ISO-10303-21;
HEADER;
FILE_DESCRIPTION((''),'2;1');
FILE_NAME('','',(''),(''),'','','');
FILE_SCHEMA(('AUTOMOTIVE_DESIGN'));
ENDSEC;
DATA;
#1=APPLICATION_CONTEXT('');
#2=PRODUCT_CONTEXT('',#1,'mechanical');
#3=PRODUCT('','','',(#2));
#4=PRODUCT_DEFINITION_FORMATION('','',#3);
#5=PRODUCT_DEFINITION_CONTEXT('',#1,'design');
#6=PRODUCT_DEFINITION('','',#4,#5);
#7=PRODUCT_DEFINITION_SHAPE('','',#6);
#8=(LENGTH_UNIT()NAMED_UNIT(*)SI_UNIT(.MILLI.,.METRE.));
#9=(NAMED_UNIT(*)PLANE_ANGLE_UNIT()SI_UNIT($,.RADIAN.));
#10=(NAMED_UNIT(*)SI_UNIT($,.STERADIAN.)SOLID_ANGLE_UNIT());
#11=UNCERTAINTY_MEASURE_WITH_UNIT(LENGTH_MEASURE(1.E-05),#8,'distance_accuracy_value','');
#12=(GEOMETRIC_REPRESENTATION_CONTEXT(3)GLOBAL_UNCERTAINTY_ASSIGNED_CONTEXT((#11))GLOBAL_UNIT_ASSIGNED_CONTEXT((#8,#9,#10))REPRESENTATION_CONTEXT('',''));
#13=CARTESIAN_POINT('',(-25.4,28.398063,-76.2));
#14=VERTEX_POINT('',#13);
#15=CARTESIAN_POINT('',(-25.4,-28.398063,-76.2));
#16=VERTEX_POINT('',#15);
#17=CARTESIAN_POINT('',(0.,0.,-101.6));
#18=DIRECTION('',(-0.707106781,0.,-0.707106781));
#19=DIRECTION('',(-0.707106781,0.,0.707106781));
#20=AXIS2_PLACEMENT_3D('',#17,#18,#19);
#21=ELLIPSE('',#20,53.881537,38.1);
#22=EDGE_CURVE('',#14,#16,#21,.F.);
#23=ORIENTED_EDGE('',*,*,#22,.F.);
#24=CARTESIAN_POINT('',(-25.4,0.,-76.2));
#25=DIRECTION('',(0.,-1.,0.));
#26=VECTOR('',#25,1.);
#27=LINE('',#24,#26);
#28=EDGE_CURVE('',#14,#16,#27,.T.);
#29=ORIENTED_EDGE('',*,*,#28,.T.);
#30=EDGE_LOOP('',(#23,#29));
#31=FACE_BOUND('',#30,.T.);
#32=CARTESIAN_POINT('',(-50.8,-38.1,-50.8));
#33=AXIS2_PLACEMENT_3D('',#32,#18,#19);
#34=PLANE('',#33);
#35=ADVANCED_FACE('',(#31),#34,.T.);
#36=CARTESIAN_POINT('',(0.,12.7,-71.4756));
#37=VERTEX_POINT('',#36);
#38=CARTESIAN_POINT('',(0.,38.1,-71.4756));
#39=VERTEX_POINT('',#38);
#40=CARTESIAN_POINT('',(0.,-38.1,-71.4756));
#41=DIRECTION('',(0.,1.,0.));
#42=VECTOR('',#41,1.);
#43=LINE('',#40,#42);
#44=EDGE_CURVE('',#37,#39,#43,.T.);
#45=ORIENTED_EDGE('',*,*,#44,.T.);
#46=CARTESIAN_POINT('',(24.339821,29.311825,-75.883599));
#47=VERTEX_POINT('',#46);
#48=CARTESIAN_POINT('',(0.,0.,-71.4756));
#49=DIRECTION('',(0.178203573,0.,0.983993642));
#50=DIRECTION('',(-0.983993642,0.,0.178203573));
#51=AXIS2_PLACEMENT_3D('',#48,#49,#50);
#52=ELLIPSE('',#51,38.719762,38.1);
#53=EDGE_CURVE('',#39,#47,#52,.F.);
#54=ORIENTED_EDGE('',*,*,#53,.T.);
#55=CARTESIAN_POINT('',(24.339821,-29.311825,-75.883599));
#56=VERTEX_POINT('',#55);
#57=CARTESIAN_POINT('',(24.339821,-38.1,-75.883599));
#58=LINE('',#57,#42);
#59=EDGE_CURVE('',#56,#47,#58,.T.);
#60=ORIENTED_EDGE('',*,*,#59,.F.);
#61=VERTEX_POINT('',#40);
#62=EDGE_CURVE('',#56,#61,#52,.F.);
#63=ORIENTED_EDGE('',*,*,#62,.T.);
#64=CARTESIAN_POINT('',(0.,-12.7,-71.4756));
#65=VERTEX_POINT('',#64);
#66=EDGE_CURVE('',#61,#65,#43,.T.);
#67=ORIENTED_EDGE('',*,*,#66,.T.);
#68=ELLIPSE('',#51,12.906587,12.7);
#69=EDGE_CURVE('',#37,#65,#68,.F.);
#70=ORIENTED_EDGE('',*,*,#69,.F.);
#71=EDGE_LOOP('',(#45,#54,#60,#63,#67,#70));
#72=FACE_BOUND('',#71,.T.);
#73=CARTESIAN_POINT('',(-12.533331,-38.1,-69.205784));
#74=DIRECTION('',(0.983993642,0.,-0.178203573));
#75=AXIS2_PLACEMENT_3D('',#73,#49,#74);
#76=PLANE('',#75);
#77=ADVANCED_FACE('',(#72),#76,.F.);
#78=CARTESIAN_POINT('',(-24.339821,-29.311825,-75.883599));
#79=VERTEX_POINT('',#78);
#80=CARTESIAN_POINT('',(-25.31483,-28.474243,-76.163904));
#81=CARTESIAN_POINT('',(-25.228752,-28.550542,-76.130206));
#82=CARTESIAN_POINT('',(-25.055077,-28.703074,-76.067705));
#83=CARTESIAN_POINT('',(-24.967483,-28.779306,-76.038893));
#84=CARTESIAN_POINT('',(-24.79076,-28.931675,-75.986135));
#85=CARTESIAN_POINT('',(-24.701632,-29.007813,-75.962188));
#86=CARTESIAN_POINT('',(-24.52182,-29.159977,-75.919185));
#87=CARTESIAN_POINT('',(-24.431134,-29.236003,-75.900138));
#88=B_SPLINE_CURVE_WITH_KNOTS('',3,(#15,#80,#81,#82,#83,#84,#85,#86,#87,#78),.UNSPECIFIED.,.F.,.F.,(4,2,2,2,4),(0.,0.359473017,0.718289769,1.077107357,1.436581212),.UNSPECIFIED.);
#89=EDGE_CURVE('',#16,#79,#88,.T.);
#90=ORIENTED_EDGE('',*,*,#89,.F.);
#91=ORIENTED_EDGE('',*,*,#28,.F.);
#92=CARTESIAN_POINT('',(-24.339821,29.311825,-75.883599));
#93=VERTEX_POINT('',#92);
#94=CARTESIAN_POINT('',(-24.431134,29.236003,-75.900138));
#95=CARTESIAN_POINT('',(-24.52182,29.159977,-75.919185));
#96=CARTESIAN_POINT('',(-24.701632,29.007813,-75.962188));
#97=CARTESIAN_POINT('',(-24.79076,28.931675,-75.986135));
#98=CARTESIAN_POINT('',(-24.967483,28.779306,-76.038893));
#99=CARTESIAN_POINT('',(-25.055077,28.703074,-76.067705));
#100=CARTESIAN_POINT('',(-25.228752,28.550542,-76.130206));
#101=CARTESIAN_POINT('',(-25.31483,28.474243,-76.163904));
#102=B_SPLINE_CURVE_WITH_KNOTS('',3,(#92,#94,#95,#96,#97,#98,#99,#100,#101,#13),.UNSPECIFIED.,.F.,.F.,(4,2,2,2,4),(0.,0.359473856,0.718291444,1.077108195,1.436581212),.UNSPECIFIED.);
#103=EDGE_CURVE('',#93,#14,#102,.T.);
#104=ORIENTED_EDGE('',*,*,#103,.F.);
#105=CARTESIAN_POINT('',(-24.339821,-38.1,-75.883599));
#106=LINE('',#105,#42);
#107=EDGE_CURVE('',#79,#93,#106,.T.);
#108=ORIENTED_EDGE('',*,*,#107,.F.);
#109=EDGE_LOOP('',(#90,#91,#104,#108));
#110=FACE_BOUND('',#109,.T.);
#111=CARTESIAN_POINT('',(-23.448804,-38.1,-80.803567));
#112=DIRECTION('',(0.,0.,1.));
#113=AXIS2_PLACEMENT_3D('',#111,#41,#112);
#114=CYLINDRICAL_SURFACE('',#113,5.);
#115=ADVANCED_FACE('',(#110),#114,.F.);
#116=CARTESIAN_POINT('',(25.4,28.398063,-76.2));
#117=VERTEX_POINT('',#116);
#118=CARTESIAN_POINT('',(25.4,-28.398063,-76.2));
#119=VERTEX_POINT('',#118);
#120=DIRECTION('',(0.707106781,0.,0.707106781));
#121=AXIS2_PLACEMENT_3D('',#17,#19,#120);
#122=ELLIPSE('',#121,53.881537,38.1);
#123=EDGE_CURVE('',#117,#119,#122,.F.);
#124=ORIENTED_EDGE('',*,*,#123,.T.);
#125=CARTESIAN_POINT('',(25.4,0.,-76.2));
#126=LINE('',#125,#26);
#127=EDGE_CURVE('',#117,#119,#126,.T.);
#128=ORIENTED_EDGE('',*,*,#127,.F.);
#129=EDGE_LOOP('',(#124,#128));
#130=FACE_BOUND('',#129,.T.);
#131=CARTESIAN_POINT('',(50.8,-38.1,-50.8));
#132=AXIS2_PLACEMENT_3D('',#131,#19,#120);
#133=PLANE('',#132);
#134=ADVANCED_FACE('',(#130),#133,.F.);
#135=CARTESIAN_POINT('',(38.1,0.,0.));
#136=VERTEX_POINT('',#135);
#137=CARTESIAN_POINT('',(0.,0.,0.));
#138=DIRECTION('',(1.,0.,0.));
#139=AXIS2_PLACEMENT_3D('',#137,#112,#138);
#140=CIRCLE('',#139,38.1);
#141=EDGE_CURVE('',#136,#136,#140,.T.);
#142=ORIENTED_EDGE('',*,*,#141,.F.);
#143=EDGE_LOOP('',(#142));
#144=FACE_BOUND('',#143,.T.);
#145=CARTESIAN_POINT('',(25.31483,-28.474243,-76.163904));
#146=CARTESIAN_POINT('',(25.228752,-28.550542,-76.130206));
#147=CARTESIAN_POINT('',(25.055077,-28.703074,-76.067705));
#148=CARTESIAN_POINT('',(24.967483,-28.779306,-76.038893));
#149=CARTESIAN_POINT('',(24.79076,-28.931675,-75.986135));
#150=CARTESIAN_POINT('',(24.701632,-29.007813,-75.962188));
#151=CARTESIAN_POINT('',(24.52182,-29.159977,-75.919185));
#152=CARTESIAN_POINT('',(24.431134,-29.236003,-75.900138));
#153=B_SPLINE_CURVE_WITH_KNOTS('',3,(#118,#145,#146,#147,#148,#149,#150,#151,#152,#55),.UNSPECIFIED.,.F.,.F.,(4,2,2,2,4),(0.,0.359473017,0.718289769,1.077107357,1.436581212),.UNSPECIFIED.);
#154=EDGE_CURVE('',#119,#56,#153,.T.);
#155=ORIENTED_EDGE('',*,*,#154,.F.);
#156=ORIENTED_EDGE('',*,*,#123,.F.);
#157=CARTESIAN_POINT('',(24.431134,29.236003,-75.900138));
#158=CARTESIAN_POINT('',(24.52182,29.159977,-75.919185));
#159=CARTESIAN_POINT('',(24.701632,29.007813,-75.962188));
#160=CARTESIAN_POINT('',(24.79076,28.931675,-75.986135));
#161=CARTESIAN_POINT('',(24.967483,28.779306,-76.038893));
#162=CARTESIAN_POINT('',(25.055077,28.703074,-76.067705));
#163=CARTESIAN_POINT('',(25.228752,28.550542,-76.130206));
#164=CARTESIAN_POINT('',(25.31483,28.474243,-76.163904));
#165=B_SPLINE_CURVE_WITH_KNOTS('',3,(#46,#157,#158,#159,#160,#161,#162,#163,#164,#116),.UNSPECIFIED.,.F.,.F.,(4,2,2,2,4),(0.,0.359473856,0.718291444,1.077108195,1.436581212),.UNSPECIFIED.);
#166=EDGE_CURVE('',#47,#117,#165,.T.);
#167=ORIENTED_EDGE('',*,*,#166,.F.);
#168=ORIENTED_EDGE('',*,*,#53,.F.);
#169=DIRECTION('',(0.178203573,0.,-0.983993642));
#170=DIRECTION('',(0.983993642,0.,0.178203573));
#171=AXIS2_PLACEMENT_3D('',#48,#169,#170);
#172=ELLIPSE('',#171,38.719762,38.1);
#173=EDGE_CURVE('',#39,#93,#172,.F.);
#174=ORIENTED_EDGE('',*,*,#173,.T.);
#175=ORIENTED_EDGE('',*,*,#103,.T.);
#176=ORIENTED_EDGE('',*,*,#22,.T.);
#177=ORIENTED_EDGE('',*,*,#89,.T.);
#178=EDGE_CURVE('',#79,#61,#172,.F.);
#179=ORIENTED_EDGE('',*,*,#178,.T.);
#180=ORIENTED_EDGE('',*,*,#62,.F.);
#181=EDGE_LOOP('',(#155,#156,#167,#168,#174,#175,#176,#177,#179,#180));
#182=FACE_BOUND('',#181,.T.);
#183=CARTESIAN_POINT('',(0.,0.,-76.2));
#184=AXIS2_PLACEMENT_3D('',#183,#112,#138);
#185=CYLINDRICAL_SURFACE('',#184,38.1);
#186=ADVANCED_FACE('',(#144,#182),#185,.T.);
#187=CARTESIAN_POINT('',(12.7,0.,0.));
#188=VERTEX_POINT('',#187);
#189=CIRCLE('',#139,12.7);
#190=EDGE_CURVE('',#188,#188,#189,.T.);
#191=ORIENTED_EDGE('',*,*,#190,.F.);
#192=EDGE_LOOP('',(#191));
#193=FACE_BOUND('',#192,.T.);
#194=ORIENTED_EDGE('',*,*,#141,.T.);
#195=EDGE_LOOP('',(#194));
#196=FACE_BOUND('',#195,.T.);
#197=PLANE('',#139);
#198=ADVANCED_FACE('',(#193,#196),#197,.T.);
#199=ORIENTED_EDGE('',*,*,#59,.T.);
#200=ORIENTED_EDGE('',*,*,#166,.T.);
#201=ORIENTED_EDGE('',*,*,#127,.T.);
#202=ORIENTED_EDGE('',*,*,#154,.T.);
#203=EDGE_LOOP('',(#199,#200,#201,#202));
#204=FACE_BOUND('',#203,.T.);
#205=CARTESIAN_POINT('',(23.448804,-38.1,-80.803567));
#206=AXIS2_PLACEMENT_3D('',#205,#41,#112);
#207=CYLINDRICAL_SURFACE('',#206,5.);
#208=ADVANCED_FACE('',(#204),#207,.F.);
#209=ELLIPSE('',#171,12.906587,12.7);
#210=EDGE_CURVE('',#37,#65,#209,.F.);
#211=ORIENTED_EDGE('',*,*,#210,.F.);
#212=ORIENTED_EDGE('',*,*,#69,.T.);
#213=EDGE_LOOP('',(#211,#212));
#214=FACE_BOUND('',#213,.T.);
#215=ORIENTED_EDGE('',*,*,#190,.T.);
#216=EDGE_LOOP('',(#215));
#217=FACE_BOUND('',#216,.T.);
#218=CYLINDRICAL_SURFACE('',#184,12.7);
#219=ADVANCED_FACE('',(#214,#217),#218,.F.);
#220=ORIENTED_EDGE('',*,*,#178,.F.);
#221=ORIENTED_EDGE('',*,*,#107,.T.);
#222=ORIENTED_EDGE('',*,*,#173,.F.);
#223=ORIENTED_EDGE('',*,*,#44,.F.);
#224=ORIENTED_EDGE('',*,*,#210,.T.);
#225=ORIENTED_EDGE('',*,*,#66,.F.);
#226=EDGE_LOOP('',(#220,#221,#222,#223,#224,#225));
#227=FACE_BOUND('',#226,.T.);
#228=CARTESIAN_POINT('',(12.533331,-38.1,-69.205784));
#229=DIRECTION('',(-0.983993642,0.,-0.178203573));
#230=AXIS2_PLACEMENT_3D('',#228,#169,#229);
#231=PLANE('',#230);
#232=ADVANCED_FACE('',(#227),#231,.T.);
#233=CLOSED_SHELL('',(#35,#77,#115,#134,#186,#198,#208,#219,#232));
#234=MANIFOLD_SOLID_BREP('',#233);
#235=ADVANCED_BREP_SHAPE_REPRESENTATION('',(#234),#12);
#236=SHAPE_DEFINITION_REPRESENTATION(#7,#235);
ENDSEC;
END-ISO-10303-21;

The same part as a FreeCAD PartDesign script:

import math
import FreeCAD as App
import Part
import Sketcher

V = App.Vector
Q = App.Units.Quantity


def add_polygon(sketch, points):
    """Adds a closed chain of lines whose ends are joined by coincident constraints."""
    first, n = sketch.GeometryCount, len(points)
    for a, b in zip(points, points[1:] + points[:1]):
        sketch.addGeometry(Part.LineSegment(App.Vector(*a, 0), App.Vector(*b, 0)), False)
    for i in range(n):
        sketch.addConstraint(Sketcher.Constraint("Coincident", first + i, 2, first + (i + 1) % n, 1))

doc = App.newDocument("Part")
body = doc.addObject("PartDesign::Body", "Body")

# Sketch on XY plane
sketch1 = doc.addObject("Sketcher::SketchObject", "Sketch")
body.addObject(sketch1)
sketch1.AttachmentSupport = (doc.XY_Plane, [""])
sketch1.MapMode = "FlatFace"
sketch1.addGeometry(Part.Circle(V(0, 0, 0), V(0, 0, 1), 38), False)
sketch1.addGeometry(Part.Circle(V(0, 0, 0), V(0, 0, 1), 13), False)
sketch1.addConstraint(Sketcher.Constraint("Coincident", 0, 3, -1, 1))
sketch1.addConstraint(Sketcher.Constraint("Coincident", 1, 3, -1, 1))
sketch1.addConstraint(Sketcher.Constraint("Diameter", 0, Q("3 in")))
sketch1.addConstraint(Sketcher.Constraint("Diameter", 1, Q("1 in")))
pad1 = doc.addObject("PartDesign::Pad", "Pad")
body.addObject(pad1)
pad1.Profile = sketch1
pad1.Length = Q("3 in")
pad1.Reversed = True

# Sketch on XZ plane
sketch2 = doc.addObject("Sketcher::SketchObject", "Sketch001")
body.addObject(sketch2)
sketch2.AttachmentSupport = (doc.XZ_Plane, [""])
sketch2.MapMode = "FlatFace"
add_polygon(sketch2, [(-25.4, -76.2), (-38.1, -76.2), (-38.1, -63.5)])  # lines 0-2
sketch2.addGeometry(Part.ArcOfCircle(Part.Circle(V(-23.4, -80.8, 0), V(0, 0, 1), 5), math.radians(100.27), math.radians(112.97)), False)  # 3
sketch2.addGeometry(Part.LineSegment(V(-24.3, -75.9, 0), V(0, -71.5, 0)), False)  # 4
sketch2.addGeometry(Part.LineSegment(V(0, -71.5, 0), V(24.3, -75.9, 0)), False)  # 5
sketch2.addGeometry(Part.ArcOfCircle(Part.Circle(V(23.4, -80.8, 0), V(0, 0, 1), 5), math.radians(67.03), math.radians(79.73)), False)  # 6
sketch2.addGeometry(Part.LineSegment(V(25.4, -76.2, 0), V(-25.4, -76.2, 0)), False)  # 7
add_polygon(sketch2, [(38.1, -76.2), (25.4, -76.2), (38.1, -63.5)])  # lines 8-10
sketch2.addConstraint(Sketcher.Constraint("Tangent", 3, 1, 4, 1))
sketch2.addConstraint(Sketcher.Constraint("Coincident", 4, 2, 5, 1))
sketch2.addConstraint(Sketcher.Constraint("Tangent", 5, 2, 6, 2))
sketch2.addConstraint(Sketcher.Constraint("Coincident", 6, 1, 7, 1))
sketch2.addConstraint(Sketcher.Constraint("Coincident", 7, 2, 3, 2))
sketch2.addConstraint(Sketcher.Constraint("Horizontal", 0))
sketch2.addConstraint(Sketcher.Constraint("Vertical", 1))
sketch2.addConstraint(Sketcher.Constraint("Horizontal", 7))
sketch2.addConstraint(Sketcher.Constraint("Horizontal", 8))
sketch2.addConstraint(Sketcher.Constraint("Vertical", 10))
sketch2.addConstraint(Sketcher.Constraint("Coincident", 7, 2, 2, 2))
sketch2.addConstraint(Sketcher.Constraint("Coincident", 8, 2, 6, 1))
sketch2.addConstraint(Sketcher.Constraint("Equal", 3, 6))
sketch2.addConstraint(Sketcher.Constraint("Symmetric", 3, 3, 6, 3, -2))
sketch2.addConstraint(Sketcher.Constraint("Symmetric", 1, 2, 9, 2, -2))
sketch2.addConstraint(Sketcher.Constraint("PointOnObject", 4, 2, -2))
sketch2.addConstraint(Sketcher.Constraint("Perpendicular", 2, 9))
sketch2.addConstraint(Sketcher.Constraint("DistanceX", 7, 2, 7, 1, Q("2 in")))
sketch2.addConstraint(Sketcher.Constraint("DistanceX", 0, 2, 0, 1, Q("0.5 in")))
sketch2.addConstraint(Sketcher.Constraint("DistanceY", 0, 2, -1, 1, Q("3 in")))
sketch2.addConstraint(Sketcher.Constraint("Radius", 3, Q("5 mm")))
sketch2.addConstraint(Sketcher.Constraint("DistanceY", 4, 2, -1, 1, Q("2.814 in")))
sketch2.addConstraint(Sketcher.Constraint("DistanceY", 3, 1, -1, 1, Q("75.883599 mm")))
pocket1 = doc.addObject("PartDesign::Pocket", "Pocket")
body.addObject(pocket1)
pocket1.Profile = sketch2
pocket1.Type = "ThroughAll"
pocket1.Midplane = True

doc.recompute()
